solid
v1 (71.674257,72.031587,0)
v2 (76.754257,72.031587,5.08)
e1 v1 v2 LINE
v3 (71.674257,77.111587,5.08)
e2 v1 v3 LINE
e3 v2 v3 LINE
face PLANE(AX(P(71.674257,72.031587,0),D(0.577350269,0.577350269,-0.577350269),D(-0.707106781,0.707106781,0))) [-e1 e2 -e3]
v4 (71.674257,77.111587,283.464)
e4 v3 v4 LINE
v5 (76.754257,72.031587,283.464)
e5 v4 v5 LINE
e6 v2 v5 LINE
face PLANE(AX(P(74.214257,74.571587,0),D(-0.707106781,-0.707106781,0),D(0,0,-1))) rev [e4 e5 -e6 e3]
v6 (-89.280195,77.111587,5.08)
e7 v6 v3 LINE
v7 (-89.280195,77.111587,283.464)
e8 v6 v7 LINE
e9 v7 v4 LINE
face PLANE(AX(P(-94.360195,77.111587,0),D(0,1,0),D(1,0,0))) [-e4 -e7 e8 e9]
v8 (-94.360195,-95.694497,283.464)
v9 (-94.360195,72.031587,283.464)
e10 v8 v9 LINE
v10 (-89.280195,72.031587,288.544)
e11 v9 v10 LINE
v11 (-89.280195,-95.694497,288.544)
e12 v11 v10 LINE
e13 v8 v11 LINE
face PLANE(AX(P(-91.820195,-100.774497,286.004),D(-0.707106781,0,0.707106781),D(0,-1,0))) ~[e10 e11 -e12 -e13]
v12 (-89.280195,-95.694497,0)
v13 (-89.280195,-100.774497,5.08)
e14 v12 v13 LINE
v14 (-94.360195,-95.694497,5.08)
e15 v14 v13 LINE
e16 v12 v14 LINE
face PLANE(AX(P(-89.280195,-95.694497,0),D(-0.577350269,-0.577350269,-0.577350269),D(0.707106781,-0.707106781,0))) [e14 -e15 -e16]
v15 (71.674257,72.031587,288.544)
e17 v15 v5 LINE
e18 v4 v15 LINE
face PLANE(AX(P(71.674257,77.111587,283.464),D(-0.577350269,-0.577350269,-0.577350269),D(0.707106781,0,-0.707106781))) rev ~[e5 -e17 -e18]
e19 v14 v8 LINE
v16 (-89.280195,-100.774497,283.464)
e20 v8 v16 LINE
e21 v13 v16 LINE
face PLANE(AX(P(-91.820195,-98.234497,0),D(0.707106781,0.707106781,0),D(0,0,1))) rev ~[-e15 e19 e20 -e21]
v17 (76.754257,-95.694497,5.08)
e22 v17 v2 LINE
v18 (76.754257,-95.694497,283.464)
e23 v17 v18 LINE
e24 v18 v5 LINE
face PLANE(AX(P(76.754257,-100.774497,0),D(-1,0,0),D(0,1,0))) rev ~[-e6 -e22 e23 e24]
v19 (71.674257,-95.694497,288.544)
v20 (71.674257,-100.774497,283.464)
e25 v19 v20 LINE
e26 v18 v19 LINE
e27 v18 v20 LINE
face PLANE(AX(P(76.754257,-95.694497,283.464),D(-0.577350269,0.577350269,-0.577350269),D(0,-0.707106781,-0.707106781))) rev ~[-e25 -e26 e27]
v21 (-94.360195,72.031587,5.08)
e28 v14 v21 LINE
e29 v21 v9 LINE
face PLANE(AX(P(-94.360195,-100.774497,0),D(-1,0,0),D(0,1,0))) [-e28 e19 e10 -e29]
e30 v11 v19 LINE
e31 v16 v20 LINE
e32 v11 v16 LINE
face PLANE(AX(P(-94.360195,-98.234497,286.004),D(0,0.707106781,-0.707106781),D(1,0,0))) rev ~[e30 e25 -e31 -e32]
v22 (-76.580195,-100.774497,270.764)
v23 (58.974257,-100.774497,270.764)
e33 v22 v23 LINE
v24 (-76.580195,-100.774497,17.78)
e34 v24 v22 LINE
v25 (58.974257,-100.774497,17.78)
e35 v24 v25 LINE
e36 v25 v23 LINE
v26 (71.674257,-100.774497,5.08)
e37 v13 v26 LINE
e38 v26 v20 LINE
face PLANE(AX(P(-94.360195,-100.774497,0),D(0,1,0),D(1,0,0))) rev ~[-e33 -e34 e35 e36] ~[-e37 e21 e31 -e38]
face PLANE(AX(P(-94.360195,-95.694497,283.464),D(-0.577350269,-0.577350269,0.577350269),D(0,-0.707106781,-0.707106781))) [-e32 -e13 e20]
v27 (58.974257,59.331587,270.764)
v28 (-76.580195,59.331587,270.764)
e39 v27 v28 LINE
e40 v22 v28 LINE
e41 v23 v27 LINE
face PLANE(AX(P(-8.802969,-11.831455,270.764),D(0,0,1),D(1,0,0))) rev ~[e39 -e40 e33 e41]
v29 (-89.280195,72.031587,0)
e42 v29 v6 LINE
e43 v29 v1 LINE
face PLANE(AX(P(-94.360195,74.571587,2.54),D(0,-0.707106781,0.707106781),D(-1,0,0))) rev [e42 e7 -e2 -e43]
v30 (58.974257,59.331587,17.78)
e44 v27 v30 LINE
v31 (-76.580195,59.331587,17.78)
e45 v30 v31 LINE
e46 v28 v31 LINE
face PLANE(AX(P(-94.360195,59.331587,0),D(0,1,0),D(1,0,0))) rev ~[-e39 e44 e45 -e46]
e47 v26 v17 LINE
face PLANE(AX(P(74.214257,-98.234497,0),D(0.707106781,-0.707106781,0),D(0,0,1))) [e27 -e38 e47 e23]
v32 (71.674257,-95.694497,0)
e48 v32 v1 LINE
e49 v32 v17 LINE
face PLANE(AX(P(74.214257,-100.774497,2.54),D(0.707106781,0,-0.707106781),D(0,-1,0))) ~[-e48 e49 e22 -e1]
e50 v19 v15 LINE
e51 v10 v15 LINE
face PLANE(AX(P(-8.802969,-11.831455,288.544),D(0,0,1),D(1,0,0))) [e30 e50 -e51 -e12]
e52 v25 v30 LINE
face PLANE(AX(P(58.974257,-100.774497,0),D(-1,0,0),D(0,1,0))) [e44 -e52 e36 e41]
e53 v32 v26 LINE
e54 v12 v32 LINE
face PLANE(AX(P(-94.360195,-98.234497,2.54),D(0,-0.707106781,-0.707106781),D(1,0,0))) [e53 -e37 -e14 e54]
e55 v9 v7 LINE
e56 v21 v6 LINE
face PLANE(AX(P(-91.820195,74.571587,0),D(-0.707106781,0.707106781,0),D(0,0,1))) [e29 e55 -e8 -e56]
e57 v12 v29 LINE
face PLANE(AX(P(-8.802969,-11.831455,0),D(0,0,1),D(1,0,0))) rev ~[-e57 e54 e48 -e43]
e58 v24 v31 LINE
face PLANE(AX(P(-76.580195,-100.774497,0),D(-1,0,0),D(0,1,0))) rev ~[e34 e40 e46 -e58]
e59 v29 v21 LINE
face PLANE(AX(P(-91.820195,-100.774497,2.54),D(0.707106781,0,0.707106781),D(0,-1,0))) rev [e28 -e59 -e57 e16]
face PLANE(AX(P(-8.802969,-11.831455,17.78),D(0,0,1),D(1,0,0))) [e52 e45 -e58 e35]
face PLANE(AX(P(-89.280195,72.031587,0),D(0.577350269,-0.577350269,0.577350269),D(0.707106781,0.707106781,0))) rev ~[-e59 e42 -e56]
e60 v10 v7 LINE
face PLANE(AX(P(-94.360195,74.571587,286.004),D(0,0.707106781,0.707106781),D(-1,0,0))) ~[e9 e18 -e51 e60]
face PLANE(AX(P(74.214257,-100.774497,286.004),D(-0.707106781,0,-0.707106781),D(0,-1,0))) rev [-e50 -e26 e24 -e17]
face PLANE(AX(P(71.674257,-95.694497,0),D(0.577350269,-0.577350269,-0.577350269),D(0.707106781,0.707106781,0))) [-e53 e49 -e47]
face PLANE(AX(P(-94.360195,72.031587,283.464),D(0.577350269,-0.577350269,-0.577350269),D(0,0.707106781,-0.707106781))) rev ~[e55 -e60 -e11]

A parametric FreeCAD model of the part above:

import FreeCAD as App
import Part
import Sketcher
Q = App.Units.Quantity


def edges_at(feature, points):
    """Names of the edges that pass closest to the given points."""
    edges = feature.Shape.Edges
    near = lambda p: min(range(len(edges)), key=lambda i: edges[i].distToShape(Part.Vertex(*p))[0])
    return sorted({f"Edge{near(p) + 1}" for p in points})


def faces_at(feature, points):
    """Names of the faces that lie closest to the given points."""
    faces = feature.Shape.Faces
    near = lambda p: min(range(len(faces)), key=lambda i: faces[i].distToShape(Part.Vertex(*p))[0])
    return sorted({f"Face{near(p) + 1}" for p in points})

doc = App.newDocument("Part")
params = doc.addObject("Spreadsheet::Sheet", "Params")
for row, (alias, value) in enumerate([
    ("pad1_length", "11.36 in"),
    ("thickness_wall", "0.7 in"),
    ("chamfer_size", "0.2 in"),
], start=1):
    params.set(f"A{row}", alias)
    params.set(f"B{row}", "=" + value)
    params.setAlias(f"B{row}", alias)

body = doc.addObject("PartDesign::Body", "Body")

# Sketch on XY plane
sketch1 = doc.addObject("Sketcher::SketchObject", "Sketch")
body.addObject(sketch1)
sketch1.AttachmentSupport = (doc.XY_Plane, [""])
sketch1.MapMode = "FlatFace"
sketch1.addGeometry([
    Part.LineSegment(App.Vector(-94.360195, 77.111587, 0), App.Vector(-94.360195, -100.774497, 0)),
    Part.LineSegment(App.Vector(-94.360195, -100.774497, 0), App.Vector(76.754257, -100.774497, 0)),
    Part.LineSegment(App.Vector(76.754257, -100.774497, 0), App.Vector(76.754257, 77.111587, 0)),
    Part.LineSegment(App.Vector(76.754257, 77.111587, 0), App.Vector(-94.360195, 77.111587, 0)),
], False)
sketch1.addConstraint([
    Sketcher.Constraint("Coincident", 0, 2, 1, 1),
    Sketcher.Constraint("Coincident", 1, 2, 2, 1),
    Sketcher.Constraint("Coincident", 2, 2, 3, 1),
    Sketcher.Constraint("Coincident", 3, 2, 0, 1),
    Sketcher.Constraint("Vertical", 0),
    Sketcher.Constraint("Horizontal", 1),
    Sketcher.Constraint("Vertical", 2),
    Sketcher.Constraint("Horizontal", 3),
    Sketcher.Constraint("DistanceY", 0, 2, -1, 1, Q("3.9674999 in")),
    Sketcher.Constraint("DistanceX", 1, 1, 1, 2, Q("171.114452 mm")),
    Sketcher.Constraint("DistanceY", 0, 2, 0, 1, Q("177.886084 mm")),
    Sketcher.Constraint("DistanceX", 0, 2, -1, 1, Q("94.360195 mm")),
])
pad1 = doc.addObject("PartDesign::Pad", "Pad")
body.addObject(pad1)
pad1.Profile = sketch1
pad1.setExpression("Length", "Params.pad1_length")
doc.recompute()

thickness = doc.addObject("PartDesign::Thickness", "Thickness")
body.addObject(thickness)
thickness.Base = (pad1, faces_at(pad1, [(-8.803, -100.774, 144.272)]))
thickness.setExpression("Value", "Params.thickness_wall")
thickness.Reversed = True
thickness.Join = "Arc"
doc.recompute()

chamfer = doc.addObject("PartDesign::Chamfer", "Chamfer")
body.addObject(chamfer)
chamfer.Base = (thickness, edges_at(thickness, [
    (-8.803, -100.774, 288.544),
    (76.754, -11.831, 288.544),
    (-8.803, 77.112, 288.544),
    (-94.36, -11.831, 288.544),
    (-94.36, 77.112, 144.272),
    (76.754, 77.112, 144.272),
    (76.754, -100.774, 144.272),
    (-94.36, -100.774, 144.272),
    (-94.36, -11.831, 0),
    (-8.803, -100.774, 0),
    (76.754, -11.831, 0),
    (-8.803, 77.112, 0),
]))
chamfer.setExpression("Size", "Params.chamfer_size")

doc.recompute()
